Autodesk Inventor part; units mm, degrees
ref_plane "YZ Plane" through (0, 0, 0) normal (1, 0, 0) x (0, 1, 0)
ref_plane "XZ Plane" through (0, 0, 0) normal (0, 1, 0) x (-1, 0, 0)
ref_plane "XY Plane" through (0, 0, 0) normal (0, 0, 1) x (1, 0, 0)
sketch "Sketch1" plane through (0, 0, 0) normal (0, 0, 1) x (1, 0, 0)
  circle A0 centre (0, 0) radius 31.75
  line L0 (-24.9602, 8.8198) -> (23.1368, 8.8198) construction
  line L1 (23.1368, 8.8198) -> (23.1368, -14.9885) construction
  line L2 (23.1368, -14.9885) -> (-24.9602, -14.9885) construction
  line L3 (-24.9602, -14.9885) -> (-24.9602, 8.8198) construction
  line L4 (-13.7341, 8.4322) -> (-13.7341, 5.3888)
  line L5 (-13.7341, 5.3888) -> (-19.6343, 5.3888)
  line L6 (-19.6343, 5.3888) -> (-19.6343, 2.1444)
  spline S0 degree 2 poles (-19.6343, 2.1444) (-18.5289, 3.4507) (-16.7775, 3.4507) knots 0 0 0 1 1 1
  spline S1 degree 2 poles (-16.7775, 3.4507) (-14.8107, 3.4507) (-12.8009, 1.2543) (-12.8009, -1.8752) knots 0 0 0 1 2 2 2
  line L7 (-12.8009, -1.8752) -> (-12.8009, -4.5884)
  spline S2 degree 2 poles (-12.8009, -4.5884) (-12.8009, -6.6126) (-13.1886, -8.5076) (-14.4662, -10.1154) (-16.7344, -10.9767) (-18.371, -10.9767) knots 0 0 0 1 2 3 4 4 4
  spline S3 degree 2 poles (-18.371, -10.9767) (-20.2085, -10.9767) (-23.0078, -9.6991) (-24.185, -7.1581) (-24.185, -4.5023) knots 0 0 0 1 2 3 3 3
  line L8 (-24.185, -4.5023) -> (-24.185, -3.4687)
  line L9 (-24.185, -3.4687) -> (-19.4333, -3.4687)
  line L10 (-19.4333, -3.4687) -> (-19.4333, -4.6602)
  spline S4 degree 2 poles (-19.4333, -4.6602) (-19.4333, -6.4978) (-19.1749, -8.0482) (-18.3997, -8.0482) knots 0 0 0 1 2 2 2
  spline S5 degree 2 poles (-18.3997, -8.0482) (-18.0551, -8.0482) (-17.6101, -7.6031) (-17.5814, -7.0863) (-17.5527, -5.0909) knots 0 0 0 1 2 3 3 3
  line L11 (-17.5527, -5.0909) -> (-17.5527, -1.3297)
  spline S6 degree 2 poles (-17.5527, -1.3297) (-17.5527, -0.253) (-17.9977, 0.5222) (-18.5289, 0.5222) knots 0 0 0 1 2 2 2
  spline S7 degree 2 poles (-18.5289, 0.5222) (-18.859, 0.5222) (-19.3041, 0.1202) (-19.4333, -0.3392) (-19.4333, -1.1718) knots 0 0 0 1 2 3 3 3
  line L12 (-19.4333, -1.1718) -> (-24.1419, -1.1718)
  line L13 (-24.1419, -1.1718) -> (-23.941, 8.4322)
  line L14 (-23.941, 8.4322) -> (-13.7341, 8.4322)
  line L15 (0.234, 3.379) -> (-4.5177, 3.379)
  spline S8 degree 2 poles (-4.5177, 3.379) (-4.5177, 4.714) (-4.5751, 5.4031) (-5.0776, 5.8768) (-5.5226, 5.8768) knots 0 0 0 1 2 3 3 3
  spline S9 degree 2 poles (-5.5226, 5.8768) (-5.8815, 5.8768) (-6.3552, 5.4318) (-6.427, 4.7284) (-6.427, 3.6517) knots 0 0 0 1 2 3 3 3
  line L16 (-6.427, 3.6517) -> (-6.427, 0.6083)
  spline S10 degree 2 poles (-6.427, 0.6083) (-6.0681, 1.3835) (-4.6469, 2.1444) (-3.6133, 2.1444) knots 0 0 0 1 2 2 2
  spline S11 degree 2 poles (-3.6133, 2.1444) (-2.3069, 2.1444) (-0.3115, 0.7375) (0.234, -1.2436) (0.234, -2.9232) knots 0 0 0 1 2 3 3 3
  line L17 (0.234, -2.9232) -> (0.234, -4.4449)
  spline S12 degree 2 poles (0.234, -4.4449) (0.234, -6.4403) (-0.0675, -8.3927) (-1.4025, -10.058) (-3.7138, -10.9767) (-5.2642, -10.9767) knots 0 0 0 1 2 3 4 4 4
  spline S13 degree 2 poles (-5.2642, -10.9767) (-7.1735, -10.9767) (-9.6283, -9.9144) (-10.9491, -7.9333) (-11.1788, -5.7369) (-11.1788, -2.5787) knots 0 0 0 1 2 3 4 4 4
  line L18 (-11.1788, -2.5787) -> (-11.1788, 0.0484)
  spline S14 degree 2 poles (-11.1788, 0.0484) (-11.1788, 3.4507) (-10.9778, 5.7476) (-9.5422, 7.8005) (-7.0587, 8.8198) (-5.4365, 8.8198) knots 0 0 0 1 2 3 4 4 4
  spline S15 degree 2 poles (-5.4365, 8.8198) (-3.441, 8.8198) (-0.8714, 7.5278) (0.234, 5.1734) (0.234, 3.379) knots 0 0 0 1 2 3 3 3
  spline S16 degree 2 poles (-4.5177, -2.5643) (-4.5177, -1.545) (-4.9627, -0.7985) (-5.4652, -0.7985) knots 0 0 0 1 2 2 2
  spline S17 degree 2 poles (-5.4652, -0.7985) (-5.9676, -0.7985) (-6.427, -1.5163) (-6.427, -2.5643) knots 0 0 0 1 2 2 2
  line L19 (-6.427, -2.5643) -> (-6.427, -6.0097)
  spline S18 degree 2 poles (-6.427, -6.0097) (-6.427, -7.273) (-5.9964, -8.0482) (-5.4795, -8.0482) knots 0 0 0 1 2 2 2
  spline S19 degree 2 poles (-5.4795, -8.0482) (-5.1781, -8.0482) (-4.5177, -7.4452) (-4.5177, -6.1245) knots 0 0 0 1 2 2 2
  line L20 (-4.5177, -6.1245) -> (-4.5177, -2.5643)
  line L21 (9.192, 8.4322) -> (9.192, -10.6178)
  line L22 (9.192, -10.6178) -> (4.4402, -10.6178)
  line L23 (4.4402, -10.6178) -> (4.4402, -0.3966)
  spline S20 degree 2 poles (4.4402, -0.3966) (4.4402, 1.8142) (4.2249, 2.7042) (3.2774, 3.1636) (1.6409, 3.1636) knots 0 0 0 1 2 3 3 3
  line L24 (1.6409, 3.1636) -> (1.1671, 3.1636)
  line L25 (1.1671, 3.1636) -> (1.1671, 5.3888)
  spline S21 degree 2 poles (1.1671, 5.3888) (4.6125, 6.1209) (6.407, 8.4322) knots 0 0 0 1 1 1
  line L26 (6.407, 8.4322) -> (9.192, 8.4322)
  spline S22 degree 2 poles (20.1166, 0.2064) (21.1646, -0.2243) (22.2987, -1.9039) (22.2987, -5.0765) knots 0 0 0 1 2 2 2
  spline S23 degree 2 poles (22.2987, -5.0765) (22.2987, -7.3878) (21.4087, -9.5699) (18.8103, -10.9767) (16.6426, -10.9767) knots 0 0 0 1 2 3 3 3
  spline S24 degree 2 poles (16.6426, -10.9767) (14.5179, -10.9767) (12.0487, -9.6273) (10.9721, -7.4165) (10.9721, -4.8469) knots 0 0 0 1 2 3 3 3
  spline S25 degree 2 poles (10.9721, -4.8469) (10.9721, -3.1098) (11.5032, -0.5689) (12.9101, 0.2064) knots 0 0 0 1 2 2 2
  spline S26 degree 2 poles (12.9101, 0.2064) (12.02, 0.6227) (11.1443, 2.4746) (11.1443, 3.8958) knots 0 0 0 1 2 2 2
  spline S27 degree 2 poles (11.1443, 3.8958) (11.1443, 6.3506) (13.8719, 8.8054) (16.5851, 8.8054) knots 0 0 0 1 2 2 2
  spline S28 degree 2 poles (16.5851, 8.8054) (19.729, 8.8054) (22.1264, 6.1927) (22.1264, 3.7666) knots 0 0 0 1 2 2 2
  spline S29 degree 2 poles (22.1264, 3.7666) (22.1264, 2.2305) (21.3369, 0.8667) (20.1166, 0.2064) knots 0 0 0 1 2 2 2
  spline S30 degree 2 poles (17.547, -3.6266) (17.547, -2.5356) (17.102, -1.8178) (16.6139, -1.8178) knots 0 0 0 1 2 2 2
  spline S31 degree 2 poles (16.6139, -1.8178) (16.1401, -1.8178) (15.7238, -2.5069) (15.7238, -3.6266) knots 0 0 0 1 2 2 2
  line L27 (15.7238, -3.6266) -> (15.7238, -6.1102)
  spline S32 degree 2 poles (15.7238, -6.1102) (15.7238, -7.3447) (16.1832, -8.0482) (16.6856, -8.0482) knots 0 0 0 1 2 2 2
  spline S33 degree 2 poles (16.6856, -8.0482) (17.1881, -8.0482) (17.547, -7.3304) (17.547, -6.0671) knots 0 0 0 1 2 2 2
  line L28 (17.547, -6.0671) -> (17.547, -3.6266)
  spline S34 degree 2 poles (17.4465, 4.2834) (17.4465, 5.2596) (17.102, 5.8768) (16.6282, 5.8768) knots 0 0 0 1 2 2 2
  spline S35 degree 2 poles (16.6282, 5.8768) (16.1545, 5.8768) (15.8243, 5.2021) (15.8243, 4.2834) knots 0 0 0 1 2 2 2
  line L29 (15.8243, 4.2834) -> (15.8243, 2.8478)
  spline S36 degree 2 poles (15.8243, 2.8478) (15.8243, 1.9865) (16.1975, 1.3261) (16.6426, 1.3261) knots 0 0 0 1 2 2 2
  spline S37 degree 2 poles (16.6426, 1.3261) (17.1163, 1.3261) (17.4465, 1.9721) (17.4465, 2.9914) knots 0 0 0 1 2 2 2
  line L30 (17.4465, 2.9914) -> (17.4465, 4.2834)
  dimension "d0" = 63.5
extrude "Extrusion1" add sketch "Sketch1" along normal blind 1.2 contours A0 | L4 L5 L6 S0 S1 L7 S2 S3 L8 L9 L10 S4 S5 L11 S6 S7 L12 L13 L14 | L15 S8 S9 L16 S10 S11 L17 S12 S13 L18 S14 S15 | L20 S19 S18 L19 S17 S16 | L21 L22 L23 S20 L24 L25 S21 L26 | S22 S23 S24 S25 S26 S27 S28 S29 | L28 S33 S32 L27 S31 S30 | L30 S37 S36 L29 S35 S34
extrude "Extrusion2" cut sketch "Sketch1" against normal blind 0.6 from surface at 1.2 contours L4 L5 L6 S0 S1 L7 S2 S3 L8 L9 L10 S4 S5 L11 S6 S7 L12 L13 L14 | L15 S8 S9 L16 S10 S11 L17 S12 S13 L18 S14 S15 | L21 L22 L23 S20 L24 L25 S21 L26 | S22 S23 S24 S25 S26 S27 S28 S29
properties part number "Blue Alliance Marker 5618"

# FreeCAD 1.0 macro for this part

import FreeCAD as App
import Part
import Sketcher
Q = App.Units.Quantity

doc = App.newDocument("Part")
body = doc.addObject("PartDesign::Body", "Body")

# Sketch on XY plane
sketch1 = doc.addObject("Sketcher::SketchObject", "Sketch")
body.addObject(sketch1)
sketch1.AttachmentSupport = (doc.XY_Plane, [""])
sketch1.MapMode = "FlatFace"
sketch1.addGeometry(Part.Circle(App.Vector(0, 0, 0), App.Vector(0, 0, 1), 32), False)
sketch1.addConstraint(Sketcher.Constraint("Coincident", 0, 3, -1, 1))
sketch1.addConstraint(Sketcher.Constraint("Diameter", 0, Q("63.5 mm")))
pad1 = doc.addObject("PartDesign::Pad", "Pad")
body.addObject(pad1)
pad1.Profile = sketch1
pad1.Length = 1.2

# Sketch on XY plane
sketch2 = doc.addObject("Sketcher::SketchObject", "Sketch001")
body.addObject(sketch2)
sketch2.AttachmentSupport = (doc.XY_Plane, [""])
sketch2.MapMode = "FlatFace"
sketch2.AttachmentOffset = App.Placement(App.Vector(0, 0, 1.2), App.Rotation())
sketch2.addGeometry(Part.LineSegment(App.Vector(-13.7341, 5.3888, 0), App.Vector(-13.7341, 8.4322, 0)), False)
sketch2.addGeometry(Part.LineSegment(App.Vector(-13.7341, 8.4322, 0), App.Vector(-23.941, 8.4322, 0)), False)
sketch2.addGeometry(Part.LineSegment(App.Vector(-23.941, 8.4322, 0), App.Vector(-24.1419, -1.1718, 0)), False)
sketch2.addGeometry(Part.LineSegment(App.Vector(-24.1419, -1.1718, 0), App.Vector(-19.4333, -1.1718, 0)), False)
sketch2.addGeometry(Part.BSplineCurve([App.Vector(-18.5289, 0.5222, 0), App.Vector(-18.859, 0.5222, 0), App.Vector(-19.3041, 0.1202, 0), App.Vector(-19.4333, -0.3392, 0), App.Vector(-19.4333, -1.1718, 0)], [3, 1, 1, 3], [0, 1, 2, 3], False, 2, [1, 1, 1, 1, 1], False), False)
sketch2.addGeometry(Part.BSplineCurve([App.Vector(-17.5527, -1.3297, 0), App.Vector(-17.5527, -0.253, 0), App.Vector(-17.9977, 0.5222, 0), App.Vector(-18.5289, 0.5222, 0)], [3, 1, 3], [0, 1, 2], False, 2, [1, 1, 1, 1], False), False)
sketch2.addGeometry(Part.LineSegment(App.Vector(-17.5527, -1.3297, 0), App.Vector(-17.5527, -5.0909, 0)), False)
sketch2.addGeometry(Part.BSplineCurve([App.Vector(-18.3997, -8.0482, 0), App.Vector(-18.0551, -8.0482, 0), App.Vector(-17.6101, -7.6031, 0), App.Vector(-17.5814, -7.0863, 0), App.Vector(-17.5527, -5.0909, 0)], [3, 1, 1, 3], [0, 1, 2, 3], False, 2, [1, 1, 1, 1, 1], False), False)
sketch2.addGeometry(Part.BSplineCurve([App.Vector(-19.4333, -4.6602, 0), App.Vector(-19.4333, -6.4978, 0), App.Vector(-19.1749, -8.0482, 0), App.Vector(-18.3997, -8.0482, 0)], [3, 1, 3], [0, 1, 2], False, 2, [1, 1, 1, 1], False), False)
sketch2.addGeometry(Part.LineSegment(App.Vector(-19.4333, -4.6602, 0), App.Vector(-19.4333, -3.4687, 0)), False)
sketch2.addGeometry(Part.LineSegment(App.Vector(-19.4333, -3.4687, 0), App.Vector(-24.185, -3.4687, 0)), False)
sketch2.addGeometry(Part.LineSegment(App.Vector(-24.185, -3.4687, 0), App.Vector(-24.185, -4.5023, 0)), False)
sketch2.addGeometry(Part.BSplineCurve([App.Vector(-18.371, -10.9767, 0), App.Vector(-20.2085, -10.9767, 0), App.Vector(-23.0078, -9.6991, 0), App.Vector(-24.185, -7.1581, 0), App.Vector(-24.185, -4.5023, 0)], [3, 1, 1, 3], [0, 1, 2, 3], False, 2, [1, 1, 1, 1, 1], False), False)
sketch2.addGeometry(Part.BSplineCurve([App.Vector(-12.8009, -4.5884, 0), App.Vector(-12.8009, -6.6126, 0), App.Vector(-13.1886, -8.5076, 0), App.Vector(-14.4662, -10.1154, 0), App.Vector(-16.7344, -10.9767, 0), App.Vector(-18.371, -10.9767, 0)], [3, 1, 1, 1, 3], [0, 1, 2, 3, 4], False, 2, [1, 1, 1, 1, 1, 1], False), False)
sketch2.addGeometry(Part.LineSegment(App.Vector(-12.8009, -4.5884, 0), App.Vector(-12.8009, -1.8752, 0)), False)
sketch2.addGeometry(Part.BSplineCurve([App.Vector(-16.7775, 3.4507, 0), App.Vector(-14.8107, 3.4507, 0), App.Vector(-12.8009, 1.2543, 0), App.Vector(-12.8009, -1.8752, 0)], [3, 1, 3], [0, 1, 2], False, 2, [1, 1, 1, 1], False), False)
sketch2.addGeometry(Part.BSplineCurve([App.Vector(-19.6343, 2.1444, 0), App.Vector(-18.5289, 3.4507, 0), App.Vector(-16.7775, 3.4507, 0)], [3, 3], [0, 1], False, 2, [1, 1, 1], False), False)
sketch2.addGeometry(Part.LineSegment(App.Vector(-19.6343, 2.1444, 0), App.Vector(-19.6343, 5.3888, 0)), False)
sketch2.addGeometry(Part.LineSegment(App.Vector(-19.6343, 5.3888, 0), App.Vector(-13.7341, 5.3888, 0)), False)
sketch2.addGeometry(Part.LineSegment(App.Vector(-4.5177, 3.379, 0), App.Vector(0.234, 3.379, 0)), False)
sketch2.addGeometry(Part.BSplineCurve([App.Vector(-5.4365, 8.8198, 0), App.Vector(-3.441, 8.8198, 0), App.Vector(-0.8714, 7.5278, 0), App.Vector(0.234, 5.1734, 0), App.Vector(0.234, 3.379, 0)], [3, 1, 1, 3], [0, 1, 2, 3], False, 2, [1, 1, 1, 1, 1], False), False)
sketch2.addGeometry(Part.BSplineCurve([App.Vector(-11.1788, 0.0484, 0), App.Vector(-11.1788, 3.4507, 0), App.Vector(-10.9778, 5.7476, 0), App.Vector(-9.5422, 7.8005, 0), App.Vector(-7.0587, 8.8198, 0), App.Vector(-5.4365, 8.8198, 0)], [3, 1, 1, 1, 3], [0, 1, 2, 3, 4], False, 2, [1, 1, 1, 1, 1, 1], False), False)
sketch2.addGeometry(Part.LineSegment(App.Vector(-11.1788, 0.0484, 0), App.Vector(-11.1788, -2.5787, 0)), False)
sketch2.addGeometry(Part.BSplineCurve([App.Vector(-5.2642, -10.9767, 0), App.Vector(-7.1735, -10.9767, 0), App.Vector(-9.6283, -9.9144, 0), App.Vector(-10.9491, -7.9333, 0), App.Vector(-11.1788, -5.7369, 0), App.Vector(-11.1788, -2.5787, 0)], [3, 1, 1, 1, 3], [0, 1, 2, 3, 4], False, 2, [1, 1, 1, 1, 1, 1], False), False)
sketch2.addGeometry(Part.BSplineCurve([App.Vector(0.234, -4.4449, 0), App.Vector(0.234, -6.4403, 0), App.Vector(-0.0675, -8.3927, 0), App.Vector(-1.4025, -10.058, 0), App.Vector(-3.7138, -10.9767, 0), App.Vector(-5.2642, -10.9767, 0)], [3, 1, 1, 1, 3], [0, 1, 2, 3, 4], False, 2, [1, 1, 1, 1, 1, 1], False), False)
sketch2.addGeometry(Part.LineSegment(App.Vector(0.234, -4.4449, 0), App.Vector(0.234, -2.9232, 0)), False)
sketch2.addGeometry(Part.BSplineCurve([App.Vector(-3.6133, 2.1444, 0), App.Vector(-2.3069, 2.1444, 0), App.Vector(-0.3115, 0.7375, 0), App.Vector(0.234, -1.2436, 0), App.Vector(0.234, -2.9232, 0)], [3, 1, 1, 3], [0, 1, 2, 3], False, 2, [1, 1, 1, 1, 1], False), False)
sketch2.addGeometry(Part.BSplineCurve([App.Vector(-6.427, 0.6083, 0), App.Vector(-6.0681, 1.3835, 0), App.Vector(-4.6469, 2.1444, 0), App.Vector(-3.6133, 2.1444, 0)], [3, 1, 3], [0, 1, 2], False, 2, [1, 1, 1, 1], False), False)
sketch2.addGeometry(Part.LineSegment(App.Vector(-6.427, 0.6083, 0), App.Vector(-6.427, 3.6517, 0)), False)
sketch2.addGeometry(Part.BSplineCurve([App.Vector(-5.5226, 5.8768, 0), App.Vector(-5.8815, 5.8768, 0), App.Vector(-6.3552, 5.4318, 0), App.Vector(-6.427, 4.7284, 0), App.Vector(-6.427, 3.6517, 0)], [3, 1, 1, 3], [0, 1, 2, 3], False, 2, [1, 1, 1, 1, 1], False), False)
sketch2.addGeometry(Part.BSplineCurve([App.Vector(-4.5177, 3.379, 0), App.Vector(-4.5177, 4.714, 0), App.Vector(-4.5751, 5.4031, 0), App.Vector(-5.0776, 5.8768, 0), App.Vector(-5.5226, 5.8768, 0)], [3, 1, 1, 3], [0, 1, 2, 3], False, 2, [1, 1, 1, 1, 1], False), False)
sketch2.addGeometry(Part.BSplineCurve([App.Vector(-4.5177, -2.5643, 0), App.Vector(-4.5177, -1.545, 0), App.Vector(-4.9627, -0.7985, 0), App.Vector(-5.4652, -0.7985, 0)], [3, 1, 3], [0, 1, 2], False, 2, [1, 1, 1, 1], False), False)
sketch2.addGeometry(Part.LineSegment(App.Vector(-4.5177, -2.5643, 0), App.Vector(-4.5177, -6.1245, 0)), False)
sketch2.addGeometry(Part.BSplineCurve([App.Vector(-5.4795, -8.0482, 0), App.Vector(-5.1781, -8.0482, 0), App.Vector(-4.5177, -7.4452, 0), App.Vector(-4.5177, -6.1245, 0)], [3, 1, 3], [0, 1, 2], False, 2, [1, 1, 1, 1], False), False)
sketch2.addGeometry(Part.BSplineCurve([App.Vector(-6.427, -6.0097, 0), App.Vector(-6.427, -7.273, 0), App.Vector(-5.9964, -8.0482, 0), App.Vector(-5.4795, -8.0482, 0)], [3, 1, 3], [0, 1, 2], False, 2, [1, 1, 1, 1], False), False)
sketch2.addGeometry(Part.LineSegment(App.Vector(-6.427, -6.0097, 0), App.Vector(-6.427, -2.5643, 0)), False)
sketch2.addGeometry(Part.BSplineCurve([App.Vector(-5.4652, -0.7985, 0), App.Vector(-5.9676, -0.7985, 0), App.Vector(-6.427, -1.5163, 0), App.Vector(-6.427, -2.5643, 0)], [3, 1, 3], [0, 1, 2], False, 2, [1, 1, 1, 1], False), False)
sketch2.addGeometry(Part.LineSegment(App.Vector(9.192, -10.6178, 0), App.Vector(9.192, 8.4322, 0)), False)
sketch2.addGeometry(Part.LineSegment(App.Vector(9.192, 8.4322, 0), App.Vector(6.407, 8.4322, 0)), False)
sketch2.addGeometry(Part.BSplineCurve([App.Vector(1.1671, 5.3888, 0), App.Vector(4.6125, 6.1209, 0), App.Vector(6.407, 8.4322, 0)], [3, 3], [0, 1], False, 2, [1, 1, 1], False), False)
sketch2.addGeometry(Part.LineSegment(App.Vector(1.1671, 5.3888, 0), App.Vector(1.1671, 3.1636, 0)), False)
sketch2.addGeometry(Part.LineSegment(App.Vector(1.1671, 3.1636, 0), App.Vector(1.6409, 3.1636, 0)), False)
sketch2.addGeometry(Part.BSplineCurve([App.Vector(4.4402, -0.3966, 0), App.Vector(4.4402, 1.8142, 0), App.Vector(4.2249, 2.7042, 0), App.Vector(3.2774, 3.1636, 0), App.Vector(1.6409, 3.1636, 0)], [3, 1, 1, 3], [0, 1, 2, 3], False, 2, [1, 1, 1, 1, 1], False), False)
sketch2.addGeometry(Part.LineSegment(App.Vector(4.4402, -0.3966, 0), App.Vector(4.4402, -10.6178, 0)), False)
sketch2.addGeometry(Part.LineSegment(App.Vector(4.4402, -10.6178, 0), App.Vector(9.192, -10.6178, 0)), False)
sketch2.addGeometry(Part.BSplineCurve([App.Vector(20.1166, 0.2064, 0), App.Vector(21.1646, -0.2243, 0), App.Vector(22.2987, -1.9039, 0), App.Vector(22.2987, -5.0765, 0)], [3, 1, 3], [0, 1, 2], False, 2, [1, 1, 1, 1], False), False)
sketch2.addGeometry(Part.BSplineCurve([App.Vector(22.1264, 3.7666, 0), App.Vector(22.1264, 2.2305, 0), App.Vector(21.3369, 0.8667, 0), App.Vector(20.1166, 0.2064, 0)], [3, 1, 3], [0, 1, 2], False, 2, [1, 1, 1, 1], False), False)
sketch2.addGeometry(Part.BSplineCurve([App.Vector(16.5851, 8.8054, 0), App.Vector(19.729, 8.8054, 0), App.Vector(22.1264, 6.1927, 0), App.Vector(22.1264, 3.7666, 0)], [3, 1, 3], [0, 1, 2], False, 2, [1, 1, 1, 1], False), False)
sketch2.addGeometry(Part.BSplineCurve([App.Vector(11.1443, 3.8958, 0), App.Vector(11.1443, 6.3506, 0), App.Vector(13.8719, 8.8054, 0), App.Vector(16.5851, 8.8054, 0)], [3, 1, 3], [0, 1, 2], False, 2, [1, 1, 1, 1], False), False)
sketch2.addGeometry(Part.BSplineCurve([App.Vector(12.9101, 0.2064, 0), App.Vector(12.02, 0.6227, 0), App.Vector(11.1443, 2.4746, 0), App.Vector(11.1443, 3.8958, 0)], [3, 1, 3], [0, 1, 2], False, 2, [1, 1, 1, 1], False), False)
sketch2.addGeometry(Part.BSplineCurve([App.Vector(10.9721, -4.8469, 0), App.Vector(10.9721, -3.1098, 0), App.Vector(11.5032, -0.5689, 0), App.Vector(12.9101, 0.2064, 0)], [3, 1, 3], [0, 1, 2], False, 2, [1, 1, 1, 1], False), False)
sketch2.addGeometry(Part.BSplineCurve([App.Vector(16.6426, -10.9767, 0), App.Vector(14.5179, -10.9767, 0), App.Vector(12.0487, -9.6273, 0), App.Vector(10.9721, -7.4165, 0), App.Vector(10.9721, -4.8469, 0)], [3, 1, 1, 3], [0, 1, 2, 3], False, 2, [1, 1, 1, 1, 1], False), False)
sketch2.addGeometry(Part.BSplineCurve([App.Vector(22.2987, -5.0765, 0), App.Vector(22.2987, -7.3878, 0), App.Vector(21.4087, -9.5699, 0), App.Vector(18.8103, -10.9767, 0), App.Vector(16.6426, -10.9767, 0)], [3, 1, 1, 3], [0, 1, 2, 3], False, 2, [1, 1, 1, 1, 1], False), False)
sketch2.addGeometry(Part.BSplineCurve([App.Vector(17.547, -3.6266, 0), App.Vector(17.547, -2.5356, 0), App.Vector(17.102, -1.8178, 0), App.Vector(16.6139, -1.8178, 0)], [3, 1, 3], [0, 1, 2], False, 2, [1, 1, 1, 1], False), False)
sketch2.addGeometry(Part.LineSegment(App.Vector(17.547, -3.6266, 0), App.Vector(17.547, -6.0671, 0)), False)
sketch2.addGeometry(Part.BSplineCurve([App.Vector(16.6856, -8.0482, 0), App.Vector(17.1881, -8.0482, 0), App.Vector(17.547, -7.3304, 0), App.Vector(17.547, -6.0671, 0)], [3, 1, 3], [0, 1, 2], False, 2, [1, 1, 1, 1], False), False)
sketch2.addGeometry(Part.BSplineCurve([App.Vector(15.7238, -6.1102, 0), App.Vector(15.7238, -7.3447, 0), App.Vector(16.1832, -8.0482, 0), App.Vector(16.6856, -8.0482, 0)], [3, 1, 3], [0, 1, 2], False, 2, [1, 1, 1, 1], False), False)
sketch2.addGeometry(Part.LineSegment(App.Vector(15.7238, -6.1102, 0), App.Vector(15.7238, -3.6266, 0)), False)
sketch2.addGeometry(Part.BSplineCurve([App.Vector(16.6139, -1.8178, 0), App.Vector(16.1401, -1.8178, 0), App.Vector(15.7238, -2.5069, 0), App.Vector(15.7238, -3.6266, 0)], [3, 1, 3], [0, 1, 2], False, 2, [1, 1, 1, 1], False), False)
sketch2.addGeometry(Part.BSplineCurve([App.Vector(17.4465, 4.2834, 0), App.Vector(17.4465, 5.2596, 0), App.Vector(17.102, 5.8768, 0), App.Vector(16.6282, 5.8768, 0)], [3, 1, 3], [0, 1, 2], False, 2, [1, 1, 1, 1], False), False)
sketch2.addGeometry(Part.LineSegment(App.Vector(17.4465, 4.2834, 0), App.Vector(17.4465, 2.9914, 0)), False)
sketch2.addGeometry(Part.BSplineCurve([App.Vector(16.6426, 1.3261, 0), App.Vector(17.1163, 1.3261, 0), App.Vector(17.4465, 1.9721, 0), App.Vector(17.4465, 2.9914, 0)], [3, 1, 3], [0, 1, 2], False, 2, [1, 1, 1, 1], False), False)
sketch2.addGeometry(Part.BSplineCurve([App.Vector(15.8243, 2.8478, 0), App.Vector(15.8243, 1.9865, 0), App.Vector(16.1975, 1.3261, 0), App.Vector(16.6426, 1.3261, 0)], [3, 1, 3], [0, 1, 2], False, 2, [1, 1, 1, 1], False), False)
sketch2.addGeometry(Part.LineSegment(App.Vector(15.8243, 2.8478, 0), App.Vector(15.8243, 4.2834, 0)), False)
sketch2.addGeometry(Part.BSplineCurve([App.Vector(16.6282, 5.8768, 0), App.Vector(16.1545, 5.8768, 0), App.Vector(15.8243, 5.2021, 0), App.Vector(15.8243, 4.2834, 0)], [3, 1, 3], [0, 1, 2], False, 2, [1, 1, 1, 1], False), False)
sketch2.addConstraint(Sketcher.Constraint("Block", 4))
sketch2.addConstraint(Sketcher.Constraint("Block", 5))
sketch2.addConstraint(Sketcher.Constraint("Block", 7))
sketch2.addConstraint(Sketcher.Constraint("Block", 8))
sketch2.addConstraint(Sketcher.Constraint("Block", 12))
sketch2.addConstraint(Sketcher.Constraint("Block", 13))
sketch2.addConstraint(Sketcher.Constraint("Block", 15))
sketch2.addConstraint(Sketcher.Constraint("Block", 16))
sketch2.addConstraint(Sketcher.Constraint("Block", 20))
sketch2.addConstraint(Sketcher.Constraint("Block", 21))
sketch2.addConstraint(Sketcher.Constraint("Block", 23))
sketch2.addConstraint(Sketcher.Constraint("Block", 24))
sketch2.addConstraint(Sketcher.Constraint("Block", 26))
sketch2.addConstraint(Sketcher.Constraint("Block", 27))
sketch2.addConstraint(Sketcher.Constraint("Block", 29))
sketch2.addConstraint(Sketcher.Constraint("Block", 30))
sketch2.addConstraint(Sketcher.Constraint("Block", 31))
sketch2.addConstraint(Sketcher.Constraint("Block", 33))
sketch2.addConstraint(Sketcher.Constraint("Block", 34))
sketch2.addConstraint(Sketcher.Constraint("Block", 36))
sketch2.addConstraint(Sketcher.Constraint("Block", 39))
sketch2.addConstraint(Sketcher.Constraint("Block", 42))
sketch2.addConstraint(Sketcher.Constraint("Block", 45))
sketch2.addConstraint(Sketcher.Constraint("Block", 46))
sketch2.addConstraint(Sketcher.Constraint("Block", 47))
sketch2.addConstraint(Sketcher.Constraint("Block", 48))
sketch2.addConstraint(Sketcher.Constraint("Block", 49))
sketch2.addConstraint(Sketcher.Constraint("Block", 50))
sketch2.addConstraint(Sketcher.Constraint("Block", 51))
sketch2.addConstraint(Sketcher.Constraint("Block", 52))
sketch2.addConstraint(Sketcher.Constraint("Block", 53))
sketch2.addConstraint(Sketcher.Constraint("Block", 55))
sketch2.addConstraint(Sketcher.Constraint("Block", 56))
sketch2.addConstraint(Sketcher.Constraint("Block", 58))
sketch2.addConstraint(Sketcher.Constraint("Block", 59))
sketch2.addConstraint(Sketcher.Constraint("Block", 61))
sketch2.addConstraint(Sketcher.Constraint("Block", 62))
sketch2.addConstraint(Sketcher.Constraint("Block", 64))
sketch2.addConstraint(Sketcher.Constraint("Coincident", 0, 2, 1, 1))
sketch2.addConstraint(Sketcher.Constraint("Coincident", 1, 2, 2, 1))
sketch2.addConstraint(Sketcher.Constraint("Coincident", 2, 2, 3, 1))
sketch2.addConstraint(Sketcher.Constraint("Coincident", 3, 2, 4, 2))
sketch2.addConstraint(Sketcher.Constraint("Coincident", 5, 1, 6, 1))
sketch2.addConstraint(Sketcher.Constraint("Coincident", 6, 2, 7, 2))
sketch2.addConstraint(Sketcher.Constraint("Coincident", 8, 1, 9, 1))
sketch2.addConstraint(Sketcher.Constraint("Coincident", 9, 2, 10, 1))
sketch2.addConstraint(Sketcher.Constraint("Coincident", 10, 2, 11, 1))
sketch2.addConstraint(Sketcher.Constraint("Coincident", 11, 2, 12, 2))
sketch2.addConstraint(Sketcher.Constraint("Coincident", 13, 1, 14, 1))
sketch2.addConstraint(Sketcher.Constraint("Coincident", 14, 2, 15, 2))
sketch2.addConstraint(Sketcher.Constraint("Coincident", 16, 1, 17, 1))
sketch2.addConstraint(Sketcher.Constraint("Coincident", 17, 2, 18, 1))
sketch2.addConstraint(Sketcher.Constraint("Coincident", 18, 2, 0, 1))
sketch2.addConstraint(Sketcher.Constraint("Coincident", 19, 2, 20, 2))
sketch2.addConstraint(Sketcher.Constraint("Coincident", 21, 1, 22, 1))
sketch2.addConstraint(Sketcher.Constraint("Coincident", 22, 2, 23, 2))
sketch2.addConstraint(Sketcher.Constraint("Coincident", 24, 1, 25, 1))
sketch2.addConstraint(Sketcher.Constraint("Coincident", 25, 2, 26, 2))
sketch2.addConstraint(Sketcher.Constraint("Coincident", 27, 1, 28, 1))
sketch2.addConstraint(Sketcher.Constraint("Coincident", 28, 2, 29, 2))
sketch2.addConstraint(Sketcher.Constraint("Coincident", 30, 1, 19, 1))
sketch2.addConstraint(Sketcher.Constraint("Coincident", 31, 1, 32, 1))
sketch2.addConstraint(Sketcher.Constraint("Coincident", 32, 2, 33, 2))
sketch2.addConstraint(Sketcher.Constraint("Coincident", 34, 1, 35, 1))
sketch2.addConstraint(Sketcher.Constraint("Coincident", 35, 2, 36, 2))
sketch2.addConstraint(Sketcher.Constraint("Coincident", 37, 2, 38, 1))
sketch2.addConstraint(Sketcher.Constraint("Coincident", 38, 2, 39, 2))
sketch2.addConstraint(Sketcher.Constraint("Coincident", 39, 1, 40, 1))
sketch2.addConstraint(Sketcher.Constraint("Coincident", 40, 2, 41, 1))
sketch2.addConstraint(Sketcher.Constraint("Coincident", 41, 2, 42, 2))
sketch2.addConstraint(Sketcher.Constraint("Coincident", 42, 1, 43, 1))
sketch2.addConstraint(Sketcher.Constraint("Coincident", 43, 2, 44, 1))
sketch2.addConstraint(Sketcher.Constraint("Coincident", 44, 2, 37, 1))
sketch2.addConstraint(Sketcher.Constraint("Coincident", 53, 1, 54, 1))
sketch2.addConstraint(Sketcher.Constraint("Coincident", 54, 2, 55, 2))
sketch2.addConstraint(Sketcher.Constraint("Coincident", 56, 1, 57, 1))
sketch2.addConstraint(Sketcher.Constraint("Coincident", 57, 2, 58, 2))
sketch2.addConstraint(Sketcher.Constraint("Coincident", 59, 1, 60, 1))
sketch2.addConstraint(Sketcher.Constraint("Coincident", 60, 2, 61, 2))
sketch2.addConstraint(Sketcher.Constraint("Coincident", 62, 1, 63, 1))
sketch2.addConstraint(Sketcher.Constraint("Coincident", 63, 2, 64, 2))
sketch2.addConstraint(Sketcher.Constraint("Vertical", 0))
sketch2.addConstraint(Sketcher.Constraint("Horizontal", 1))
sketch2.addConstraint(Sketcher.Constraint("Horizontal", 3))
sketch2.addConstraint(Sketcher.Constraint("Vertical", 9))
sketch2.addConstraint(Sketcher.Constraint("Horizontal", 10))
sketch2.addConstraint(Sketcher.Constraint("Vertical", 11))
sketch2.addConstraint(Sketcher.Constraint("Vertical", 17))
sketch2.addConstraint(Sketcher.Constraint("Horizontal", 18))
sketch2.addConstraint(Sketcher.Constraint("Vertical", 37))
sketch2.addConstraint(Sketcher.Constraint("Horizontal", 38))
sketch2.addConstraint(Sketcher.Constraint("Vertical", 40))
sketch2.addConstraint(Sketcher.Constraint("Horizontal", 41))
sketch2.addConstraint(Sketcher.Constraint("Vertical", 43))
sketch2.addConstraint(Sketcher.Constraint("Horizontal", 44))
sketch2.addConstraint(Sketcher.Constraint("DistanceY", 37, 1, 37, 2, Q("19.05 mm")))
sketch2.addConstraint(Sketcher.Constraint("DistanceX", 1, 2, 1, 1, Q("10.207 mm")))
sketch2.addConstraint(Sketcher.Constraint("DistanceX", 38, 2, 38, 1, Q("2.785 mm")))
sketch2.addConstraint(Sketcher.Constraint("DistanceY", 9, 2, 22, 2, Q("0.89 mm")))
sketch2.addConstraint(Sketcher.Constraint("Distance", 2, Q("9.606 mm")))
sketch2.addConstraint(Sketcher.Constraint("DistanceX", 3, 1, 3, 2, Q("4.7086 mm")))
sketch2.addConstraint(Sketcher.Constraint("DistanceX", 18, 1, 18, 2, Q("5.9002 mm")))
sketch2.addConstraint(Sketcher.Constraint("DistanceY", 0, 1, 0, 2, Q("3.0434 mm")))
pocket1 = doc.addObject("PartDesign::Pocket", "Pocket")
body.addObject(pocket1)
pocket1.Profile = sketch2
pocket1.Length = 0.6

doc.recompute()
